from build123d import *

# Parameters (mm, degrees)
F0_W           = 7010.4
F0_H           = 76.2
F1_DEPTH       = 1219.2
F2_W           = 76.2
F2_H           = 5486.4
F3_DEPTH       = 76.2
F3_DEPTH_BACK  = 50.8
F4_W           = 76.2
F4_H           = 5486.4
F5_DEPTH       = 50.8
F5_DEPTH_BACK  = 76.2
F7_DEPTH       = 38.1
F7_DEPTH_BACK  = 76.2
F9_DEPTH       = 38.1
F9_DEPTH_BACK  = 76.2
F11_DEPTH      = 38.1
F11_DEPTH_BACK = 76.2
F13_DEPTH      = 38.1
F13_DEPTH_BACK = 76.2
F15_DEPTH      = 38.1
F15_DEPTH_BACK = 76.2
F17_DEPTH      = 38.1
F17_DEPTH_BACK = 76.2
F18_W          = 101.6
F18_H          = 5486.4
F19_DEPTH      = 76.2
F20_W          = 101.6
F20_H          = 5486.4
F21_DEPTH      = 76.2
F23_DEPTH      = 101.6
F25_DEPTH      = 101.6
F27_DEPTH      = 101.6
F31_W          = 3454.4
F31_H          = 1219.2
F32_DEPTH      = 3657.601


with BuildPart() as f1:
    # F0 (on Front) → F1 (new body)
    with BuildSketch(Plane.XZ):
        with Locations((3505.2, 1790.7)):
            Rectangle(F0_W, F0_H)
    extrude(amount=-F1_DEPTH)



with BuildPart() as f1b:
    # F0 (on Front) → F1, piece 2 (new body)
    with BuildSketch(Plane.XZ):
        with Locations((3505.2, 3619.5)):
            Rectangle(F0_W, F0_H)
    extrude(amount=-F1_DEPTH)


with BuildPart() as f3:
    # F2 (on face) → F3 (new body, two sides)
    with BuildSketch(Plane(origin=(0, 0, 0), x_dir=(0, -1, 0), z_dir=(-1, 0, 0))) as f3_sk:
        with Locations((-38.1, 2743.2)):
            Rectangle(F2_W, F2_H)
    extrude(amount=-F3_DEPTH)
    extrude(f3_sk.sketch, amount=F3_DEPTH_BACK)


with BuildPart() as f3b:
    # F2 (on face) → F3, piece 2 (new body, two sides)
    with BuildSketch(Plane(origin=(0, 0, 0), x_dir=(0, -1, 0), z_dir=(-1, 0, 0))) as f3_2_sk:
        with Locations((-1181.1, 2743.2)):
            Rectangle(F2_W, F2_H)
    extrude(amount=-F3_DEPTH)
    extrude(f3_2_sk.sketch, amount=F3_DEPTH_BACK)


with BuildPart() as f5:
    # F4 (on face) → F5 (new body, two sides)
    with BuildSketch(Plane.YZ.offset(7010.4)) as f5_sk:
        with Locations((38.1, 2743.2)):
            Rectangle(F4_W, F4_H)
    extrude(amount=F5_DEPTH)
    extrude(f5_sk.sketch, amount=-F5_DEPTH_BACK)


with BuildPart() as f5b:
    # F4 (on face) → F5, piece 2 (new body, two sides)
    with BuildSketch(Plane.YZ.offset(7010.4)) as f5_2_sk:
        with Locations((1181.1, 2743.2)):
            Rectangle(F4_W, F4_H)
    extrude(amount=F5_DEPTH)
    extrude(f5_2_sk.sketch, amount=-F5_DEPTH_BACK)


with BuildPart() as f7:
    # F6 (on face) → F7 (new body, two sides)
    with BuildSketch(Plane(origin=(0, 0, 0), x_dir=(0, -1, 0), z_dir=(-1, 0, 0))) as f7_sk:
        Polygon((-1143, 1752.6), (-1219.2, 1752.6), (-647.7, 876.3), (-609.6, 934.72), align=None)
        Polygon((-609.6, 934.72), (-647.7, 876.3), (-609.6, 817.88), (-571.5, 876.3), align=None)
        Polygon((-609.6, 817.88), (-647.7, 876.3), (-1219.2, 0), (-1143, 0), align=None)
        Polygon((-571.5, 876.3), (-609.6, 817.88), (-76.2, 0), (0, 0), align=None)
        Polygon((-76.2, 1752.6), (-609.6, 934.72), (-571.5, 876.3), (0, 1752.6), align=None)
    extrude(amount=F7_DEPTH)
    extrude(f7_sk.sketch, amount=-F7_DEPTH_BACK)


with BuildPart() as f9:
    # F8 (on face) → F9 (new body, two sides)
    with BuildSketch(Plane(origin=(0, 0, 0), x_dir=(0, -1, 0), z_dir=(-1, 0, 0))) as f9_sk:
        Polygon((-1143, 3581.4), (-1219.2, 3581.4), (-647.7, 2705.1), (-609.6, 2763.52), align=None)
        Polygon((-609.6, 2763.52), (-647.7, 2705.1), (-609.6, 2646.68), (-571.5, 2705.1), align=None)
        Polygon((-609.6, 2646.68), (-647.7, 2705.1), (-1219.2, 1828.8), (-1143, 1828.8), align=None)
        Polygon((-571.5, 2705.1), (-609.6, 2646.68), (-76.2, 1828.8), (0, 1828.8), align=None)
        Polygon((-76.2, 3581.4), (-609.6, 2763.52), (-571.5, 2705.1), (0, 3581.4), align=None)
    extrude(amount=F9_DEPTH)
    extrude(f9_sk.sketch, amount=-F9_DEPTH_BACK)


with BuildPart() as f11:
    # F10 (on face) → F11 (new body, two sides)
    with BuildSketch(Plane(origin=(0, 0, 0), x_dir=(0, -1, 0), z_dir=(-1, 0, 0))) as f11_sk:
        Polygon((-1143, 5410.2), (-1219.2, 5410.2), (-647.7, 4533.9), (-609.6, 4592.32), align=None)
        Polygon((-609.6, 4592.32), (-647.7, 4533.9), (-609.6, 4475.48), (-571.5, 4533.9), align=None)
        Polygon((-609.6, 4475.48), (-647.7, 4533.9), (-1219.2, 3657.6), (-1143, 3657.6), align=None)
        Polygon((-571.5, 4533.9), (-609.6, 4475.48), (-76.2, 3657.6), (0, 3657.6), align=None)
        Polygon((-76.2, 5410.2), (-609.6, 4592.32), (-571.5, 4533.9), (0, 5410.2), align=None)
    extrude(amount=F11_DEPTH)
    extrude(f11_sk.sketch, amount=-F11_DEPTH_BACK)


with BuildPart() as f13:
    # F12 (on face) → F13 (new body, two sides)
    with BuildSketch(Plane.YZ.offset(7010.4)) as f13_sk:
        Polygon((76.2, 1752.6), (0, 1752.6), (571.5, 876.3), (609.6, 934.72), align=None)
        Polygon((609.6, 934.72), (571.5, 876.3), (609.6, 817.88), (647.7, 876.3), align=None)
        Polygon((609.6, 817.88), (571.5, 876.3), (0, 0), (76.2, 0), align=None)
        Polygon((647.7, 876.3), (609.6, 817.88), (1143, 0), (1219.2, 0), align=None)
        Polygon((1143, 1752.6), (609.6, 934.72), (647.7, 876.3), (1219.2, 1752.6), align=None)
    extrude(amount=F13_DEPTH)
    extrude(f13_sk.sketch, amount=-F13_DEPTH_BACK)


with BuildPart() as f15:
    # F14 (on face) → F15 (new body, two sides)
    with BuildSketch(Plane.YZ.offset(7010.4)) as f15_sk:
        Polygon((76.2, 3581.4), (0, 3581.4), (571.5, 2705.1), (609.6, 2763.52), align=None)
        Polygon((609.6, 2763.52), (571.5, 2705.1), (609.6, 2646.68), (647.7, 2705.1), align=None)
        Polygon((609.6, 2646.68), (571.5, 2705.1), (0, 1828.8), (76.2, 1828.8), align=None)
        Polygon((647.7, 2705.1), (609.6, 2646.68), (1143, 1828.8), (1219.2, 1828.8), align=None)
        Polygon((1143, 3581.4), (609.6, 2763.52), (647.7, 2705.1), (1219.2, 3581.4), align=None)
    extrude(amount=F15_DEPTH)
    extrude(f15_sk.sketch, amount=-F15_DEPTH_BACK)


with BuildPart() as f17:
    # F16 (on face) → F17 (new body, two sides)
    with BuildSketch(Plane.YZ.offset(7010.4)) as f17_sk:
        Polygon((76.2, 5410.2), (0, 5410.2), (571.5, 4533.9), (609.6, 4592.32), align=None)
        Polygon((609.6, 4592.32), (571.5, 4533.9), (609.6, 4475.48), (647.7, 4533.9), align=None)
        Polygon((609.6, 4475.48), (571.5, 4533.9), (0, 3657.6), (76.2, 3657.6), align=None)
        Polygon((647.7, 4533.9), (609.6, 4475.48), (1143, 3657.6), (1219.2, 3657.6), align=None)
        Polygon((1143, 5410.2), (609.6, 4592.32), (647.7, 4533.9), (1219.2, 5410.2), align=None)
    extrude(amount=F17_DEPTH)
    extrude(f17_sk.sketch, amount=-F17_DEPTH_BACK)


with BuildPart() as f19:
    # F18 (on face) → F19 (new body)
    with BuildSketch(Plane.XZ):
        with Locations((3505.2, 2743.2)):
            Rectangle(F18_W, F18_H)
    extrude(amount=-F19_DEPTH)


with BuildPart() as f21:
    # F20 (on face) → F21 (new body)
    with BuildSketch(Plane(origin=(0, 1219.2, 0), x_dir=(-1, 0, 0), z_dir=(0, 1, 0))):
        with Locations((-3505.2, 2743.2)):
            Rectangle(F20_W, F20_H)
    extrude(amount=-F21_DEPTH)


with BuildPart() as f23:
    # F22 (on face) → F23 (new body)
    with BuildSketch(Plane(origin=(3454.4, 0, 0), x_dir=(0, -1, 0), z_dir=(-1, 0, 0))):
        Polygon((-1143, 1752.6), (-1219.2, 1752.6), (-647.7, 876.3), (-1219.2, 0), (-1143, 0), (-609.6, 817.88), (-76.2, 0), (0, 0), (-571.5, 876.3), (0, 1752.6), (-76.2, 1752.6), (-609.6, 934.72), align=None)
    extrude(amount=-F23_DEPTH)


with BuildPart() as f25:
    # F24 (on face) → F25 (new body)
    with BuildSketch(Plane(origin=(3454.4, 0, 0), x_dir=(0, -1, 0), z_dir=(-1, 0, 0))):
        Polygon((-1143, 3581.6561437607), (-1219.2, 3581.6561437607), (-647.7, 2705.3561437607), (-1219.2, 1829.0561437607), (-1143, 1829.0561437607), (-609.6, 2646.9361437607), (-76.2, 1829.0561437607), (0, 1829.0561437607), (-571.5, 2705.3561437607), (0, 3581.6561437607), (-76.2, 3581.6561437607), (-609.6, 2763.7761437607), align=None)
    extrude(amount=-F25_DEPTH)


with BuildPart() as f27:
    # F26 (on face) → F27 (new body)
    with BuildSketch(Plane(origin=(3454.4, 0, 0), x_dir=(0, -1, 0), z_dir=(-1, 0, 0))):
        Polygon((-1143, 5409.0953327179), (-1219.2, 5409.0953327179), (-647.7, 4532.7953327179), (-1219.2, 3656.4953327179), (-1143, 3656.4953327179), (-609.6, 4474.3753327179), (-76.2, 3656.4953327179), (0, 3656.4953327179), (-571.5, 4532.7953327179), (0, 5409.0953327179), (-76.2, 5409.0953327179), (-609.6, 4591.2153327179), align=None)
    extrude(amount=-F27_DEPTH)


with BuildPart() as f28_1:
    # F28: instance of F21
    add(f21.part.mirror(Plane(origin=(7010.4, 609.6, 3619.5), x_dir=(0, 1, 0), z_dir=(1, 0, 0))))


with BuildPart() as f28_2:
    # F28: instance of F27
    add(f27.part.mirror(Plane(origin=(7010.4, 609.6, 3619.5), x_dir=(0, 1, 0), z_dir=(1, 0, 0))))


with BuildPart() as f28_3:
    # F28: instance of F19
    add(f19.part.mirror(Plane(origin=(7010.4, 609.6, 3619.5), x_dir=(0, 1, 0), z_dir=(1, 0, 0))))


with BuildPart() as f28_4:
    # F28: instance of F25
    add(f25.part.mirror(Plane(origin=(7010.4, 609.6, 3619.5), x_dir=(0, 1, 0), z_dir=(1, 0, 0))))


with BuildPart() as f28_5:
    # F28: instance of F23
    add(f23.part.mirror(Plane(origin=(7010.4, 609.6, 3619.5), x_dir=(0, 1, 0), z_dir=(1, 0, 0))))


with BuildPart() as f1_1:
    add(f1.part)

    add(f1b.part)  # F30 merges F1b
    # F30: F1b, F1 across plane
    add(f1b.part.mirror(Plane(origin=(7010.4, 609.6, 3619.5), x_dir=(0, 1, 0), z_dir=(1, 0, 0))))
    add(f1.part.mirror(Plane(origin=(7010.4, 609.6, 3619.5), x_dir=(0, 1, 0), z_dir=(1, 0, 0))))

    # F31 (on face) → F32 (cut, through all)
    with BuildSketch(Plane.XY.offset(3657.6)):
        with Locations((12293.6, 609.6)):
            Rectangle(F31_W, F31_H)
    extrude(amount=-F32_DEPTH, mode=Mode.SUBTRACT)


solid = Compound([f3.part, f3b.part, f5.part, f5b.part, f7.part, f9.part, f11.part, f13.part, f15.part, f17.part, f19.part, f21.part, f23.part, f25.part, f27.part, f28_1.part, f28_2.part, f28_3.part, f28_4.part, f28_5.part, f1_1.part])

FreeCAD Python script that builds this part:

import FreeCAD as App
import Part
import Sketcher

V = App.Vector
Q = App.Units.Quantity


def add_polygon(sketch, points):
    """Adds a closed chain of lines whose ends are joined by coincident constraints."""
    first, n = sketch.GeometryCount, len(points)
    for a, b in zip(points, points[1:] + points[:1]):
        sketch.addGeometry(Part.LineSegment(App.Vector(*a, 0), App.Vector(*b, 0)), False)
    for i in range(n):
        sketch.addConstraint(Sketcher.Constraint("Coincident", first + i, 2, first + (i + 1) % n, 1))

doc = App.newDocument("Part")
body = doc.addObject("PartDesign::Body", "Body")

# Sketch on XZ plane
sketch1 = body.newObject("Sketcher::SketchObject", "Sketch")
sketch1.AttachmentSupport = (doc.getObject("XZ_Plane"), [""])
sketch1.MapMode = "FlatFace"
add_polygon(sketch1, [(0, 1828.8), (0, 1752.6), (7010.4, 1752.6), (7010.4, 1828.8)])  # lines 0-3
sketch1.addConstraint([
    Sketcher.Constraint("Vertical", 0),
    Sketcher.Constraint("Horizontal", 1),
    Sketcher.Constraint("Vertical", 2),
    Sketcher.Constraint("Horizontal", 3),
    Sketcher.Constraint("PointOnObject", 0, 2, -2),
    Sketcher.Constraint("DistanceX", 1, 1, 1, 2, Q("276 in")),
    Sketcher.Constraint("DistanceY", 0, 2, 0, 1, Q("3 in")),
    Sketcher.Constraint("DistanceY", -1, 1, 0, 2, Q("69 in")),
])
pad1 = body.newObject("PartDesign::Pad", "Pad")
pad1.Profile = sketch1
pad1.Length = Q("48 in")
pad1.Reversed = True
body2 = doc.addObject("PartDesign::Body", "Body001")

# Sketch on XZ plane
sketch2 = body2.newObject("Sketcher::SketchObject", "Sketch001")
sketch2.AttachmentSupport = (doc.getObject("XZ_Plane001"), [""])
sketch2.MapMode = "FlatFace"
add_polygon(sketch2, [(0, 3657.6), (0, 3581.4), (7010.4, 3581.4), (7010.4, 3657.6)])  # lines 0-3
sketch2.addConstraint([
    Sketcher.Constraint("Vertical", 0),
    Sketcher.Constraint("Horizontal", 1),
    Sketcher.Constraint("Vertical", 2),
    Sketcher.Constraint("Horizontal", 3),
    Sketcher.Constraint("PointOnObject", 0, 2, -2),
    Sketcher.Constraint("DistanceX", 1, 1, 1, 2, Q("276 in")),
    Sketcher.Constraint("DistanceY", 0, 2, 0, 1, Q("3 in")),
    Sketcher.Constraint("DistanceY", -1, 1, 0, 2, Q("141 in")),
])
pad2 = body2.newObject("PartDesign::Pad", "Pad001")
pad2.Profile = sketch2
pad2.Length = Q("48 in")
pad2.Reversed = True
body3 = doc.addObject("PartDesign::Body", "Body002")

# Sketch on YZ plane
sketch3 = body3.newObject("Sketcher::SketchObject", "Sketch002")
sketch3.AttachmentSupport = (doc.getObject("YZ_Plane002"), [""])
sketch3.MapMode = "FlatFace"
add_polygon(sketch3, [(76.2, 5486.4), (76.2, 0), (0, 0), (0, 5486.4)])  # lines 0-3
sketch3.addConstraint([
    Sketcher.Constraint("Vertical", 0),
    Sketcher.Constraint("Horizontal", 1),
    Sketcher.Constraint("Vertical", 2),
    Sketcher.Constraint("Horizontal", 3),
    Sketcher.Constraint("Coincident", 1, 2, -1, 1),
    Sketcher.Constraint("DistanceX", 1, 2, 1, 1, Q("3 in")),
    Sketcher.Constraint("DistanceY", 0, 2, 0, 1, Q("216 in")),
])
pad3 = body3.newObject("PartDesign::Pad", "Pad002")
pad3.Profile = sketch3
pad3.Type = "TwoLengths"
pad3.Length = Q("3 in")
pad3.Length2 = Q("2 in")
body4 = doc.addObject("PartDesign::Body", "Body003")

# Sketch on YZ plane
sketch4 = body4.newObject("Sketcher::SketchObject", "Sketch003")
sketch4.AttachmentSupport = (doc.getObject("YZ_Plane003"), [""])
sketch4.MapMode = "FlatFace"
add_polygon(sketch4, [(1219.2, 5486.4), (1219.2, 0), (1143, 0), (1143, 5486.4)])  # lines 0-3
sketch4.addConstraint([
    Sketcher.Constraint("Vertical", 0),
    Sketcher.Constraint("Horizontal", 1),
    Sketcher.Constraint("Vertical", 2),
    Sketcher.Constraint("Horizontal", 3),
    Sketcher.Constraint("PointOnObject", 0, 2, -1),
    Sketcher.Constraint("DistanceX", 1, 2, 1, 1, Q("3 in")),
    Sketcher.Constraint("DistanceY", 0, 2, 0, 1, Q("216 in")),
    Sketcher.Constraint("DistanceX", -1, 1, 0, 2, Q("48 in")),
])
pad4 = body4.newObject("PartDesign::Pad", "Pad003")
pad4.Profile = sketch4
pad4.Type = "TwoLengths"
pad4.Length = Q("3 in")
pad4.Length2 = Q("2 in")
body5 = doc.addObject("PartDesign::Body", "Body004")

# Sketch on YZ plane
sketch5 = body5.newObject("Sketcher::SketchObject", "Sketch004")
sketch5.AttachmentSupport = (doc.getObject("YZ_Plane004"), [""])
sketch5.MapMode = "FlatFace"
sketch5.AttachmentOffset = App.Placement(V(0, 0, 276 * 25.4), App.Rotation())
add_polygon(sketch5, [(0, 5486.4), (0, 0), (76.2, 0), (76.2, 5486.4)])  # lines 0-3
sketch5.addConstraint([
    Sketcher.Constraint("Vertical", 0),
    Sketcher.Constraint("Horizontal", 1),
    Sketcher.Constraint("Vertical", 2),
    Sketcher.Constraint("Horizontal", 3),
    Sketcher.Constraint("Coincident", 0, 2, -1, 1),
    Sketcher.Constraint("DistanceX", 1, 1, 1, 2, Q("3 in")),
    Sketcher.Constraint("DistanceY", 0, 2, 0, 1, Q("216 in")),
])
pad5 = body5.newObject("PartDesign::Pad", "Pad004")
pad5.Profile = sketch5
pad5.Type = "TwoLengths"
pad5.Length = Q("2 in")
pad5.Length2 = Q("3 in")
body6 = doc.addObject("PartDesign::Body", "Body005")

# Sketch on YZ plane
sketch6 = body6.newObject("Sketcher::SketchObject", "Sketch005")
sketch6.AttachmentSupport = (doc.getObject("YZ_Plane005"), [""])
sketch6.MapMode = "FlatFace"
sketch6.AttachmentOffset = App.Placement(V(0, 0, 276 * 25.4), App.Rotation())
add_polygon(sketch6, [(1143, 5486.4), (1143, 0), (1219.2, 0), (1219.2, 5486.4)])  # lines 0-3
sketch6.addConstraint([
    Sketcher.Constraint("Vertical", 0),
    Sketcher.Constraint("Horizontal", 1),
    Sketcher.Constraint("Vertical", 2),
    Sketcher.Constraint("Horizontal", 3),
    Sketcher.Constraint("PointOnObject", 0, 2, -1),
    Sketcher.Constraint("DistanceX", 1, 1, 1, 2, Q("3 in")),
    Sketcher.Constraint("DistanceY", 0, 2, 0, 1, Q("216 in")),
    Sketcher.Constraint("DistanceX", -1, 1, 0, 2, Q("45 in")),
])
pad6 = body6.newObject("PartDesign::Pad", "Pad005")
pad6.Profile = sketch6
pad6.Type = "TwoLengths"
pad6.Length = Q("2 in")
pad6.Length2 = Q("3 in")
body7 = doc.addObject("PartDesign::Body", "Body006")

# Sketch on YZ plane
sketch7 = body7.newObject("Sketcher::SketchObject", "Sketch006")
sketch7.AttachmentSupport = (doc.getObject("YZ_Plane006"), [""])
sketch7.MapMode = "FlatFace"
add_polygon(sketch7, [(1143, 1752.6), (1219.2, 1752.6), (647.7, 876.3), (1219.2, 0), (1143, 0), (609.6, 817.88), (76.2, 0), (0, 0), (571.5, 876.3), (0, 1752.6), (76.2, 1752.6), (609.6, 934.72)])  # lines 0-11
sketch7.addConstraint([
    Sketcher.Constraint("Horizontal", 0),
    Sketcher.Constraint("Horizontal", 3),
    Sketcher.Constraint("Horizontal", 6),
    Sketcher.Constraint("Horizontal", 9),
    Sketcher.Constraint("Coincident", 6, 2, -1, 1),
    Sketcher.Constraint("PointOnObject", 2, 2, -1),
    Sketcher.Constraint("PointOnObject", 8, 2, -2),
    Sketcher.Constraint("Parallel", 2, 4),
    Sketcher.Constraint("Parallel", 1, 5),
    Sketcher.Constraint("Parallel", 5, 7),
    Sketcher.Constraint("Parallel", 4, 8),
    Sketcher.Constraint("Parallel", 8, 10),
    Sketcher.Constraint("Parallel", 7, 11),
    Sketcher.Constraint("Horizontal", 1, 2, 7, 2),
    Sketcher.Constraint("Horizontal", 0, 2, 8, 2),
    Sketcher.Constraint("Vertical", 0, 2, 2, 2),
    Sketcher.Constraint("Vertical", 5, 2, 9, 2),
    Sketcher.Constraint("Vertical", 4, 2, 10, 2),
    Sketcher.Constraint("Equal", 3, 6),
    Sketcher.Constraint("DistanceX", 0, 1, 0, 2, Q("3 in")),
    Sketcher.Constraint("DistanceX", -1, 1, 0, 2, Q("48 in")),
    Sketcher.Constraint("DistanceY", -1, 1, 0, 2, Q("69 in")),
    Sketcher.Constraint("DistanceX", 7, 2, 1, 2, Q("3 in")),
])
pad7 = body7.newObject("PartDesign::Pad", "Pad006")
pad7.Profile = sketch7
pad7.Type = "TwoLengths"
pad7.Length = Q("1.5 in")
pad7.Length2 = Q("3 in")
pad7.Reversed = True
body8 = doc.addObject("PartDesign::Body", "Body007")

# Sketch on YZ plane
sketch8 = body8.newObject("Sketcher::SketchObject", "Sketch007")
sketch8.AttachmentSupport = (doc.getObject("YZ_Plane007"), [""])
sketch8.MapMode = "FlatFace"
add_polygon(sketch8, [(1143, 3581.4), (1219.2, 3581.4), (647.7, 2705.1), (1219.2, 1828.8), (1143, 1828.8), (609.6, 2646.68), (76.2, 1828.8), (0, 1828.8), (571.5, 2705.1), (0, 3581.4), (76.2, 3581.4), (609.6, 2763.52)])  # lines 0-11
sketch8.addConstraint([
    Sketcher.Constraint("Horizontal", 0),
    Sketcher.Constraint("Horizontal", 3),
    Sketcher.Constraint("Horizontal", 6),
    Sketcher.Constraint("Horizontal", 9),
    Sketcher.Constraint("PointOnObject", 6, 2, -2),
    Sketcher.Constraint("PointOnObject", 8, 2, -2),
    Sketcher.Constraint("Parallel", 2, 4),
    Sketcher.Constraint("Parallel", 1, 5),
    Sketcher.Constraint("Parallel", 5, 7),
    Sketcher.Constraint("Parallel", 4, 8),
    Sketcher.Constraint("Parallel", 8, 10),
    Sketcher.Constraint("Parallel", 7, 11),
    Sketcher.Constraint("Horizontal", 3, 2, 5, 2),
    Sketcher.Constraint("Horizontal", 1, 2, 7, 2),
    Sketcher.Constraint("Horizontal", 0, 2, 8, 2),
    Sketcher.Constraint("Vertical", 0, 2, 2, 2),
    Sketcher.Constraint("Vertical", 5, 2, 9, 2),
    Sketcher.Constraint("Vertical", 4, 2, 10, 2),
    Sketcher.Constraint("Equal", 3, 6),
    Sketcher.Constraint("DistanceX", 0, 1, 0, 2, Q("3 in")),
    Sketcher.Constraint("DistanceX", -1, 1, 0, 2, Q("48 in")),
    Sketcher.Constraint("DistanceY", -1, 1, 0, 2, Q("141 in")),
    Sketcher.Constraint("DistanceY", -1, 1, 2, 2, Q("72 in")),
    Sketcher.Constraint("DistanceX", 7, 2, 1, 2, Q("3 in")),
])
pad8 = body8.newObject("PartDesign::Pad", "Pad007")
pad8.Profile = sketch8
pad8.Type = "TwoLengths"
pad8.Length = Q("1.5 in")
pad8.Length2 = Q("3 in")
pad8.Reversed = True
body9 = doc.addObject("PartDesign::Body", "Body008")

# Sketch on YZ plane
sketch9 = body9.newObject("Sketcher::SketchObject", "Sketch008")
sketch9.AttachmentSupport = (doc.getObject("YZ_Plane008"), [""])
sketch9.MapMode = "FlatFace"
add_polygon(sketch9, [(1143, 5410.2), (1219.2, 5410.2), (647.7, 4533.9), (1219.2, 3657.6), (1143, 3657.6), (609.6, 4475.48), (76.2, 3657.6), (0, 3657.6), (571.5, 4533.9), (0, 5410.2), (76.2, 5410.2), (609.6, 4592.32)])  # lines 0-11
sketch9.addConstraint([
    Sketcher.Constraint("Horizontal", 0),
    Sketcher.Constraint("Horizontal", 3),
    Sketcher.Constraint("Horizontal", 6),
    Sketcher.Constraint("Horizontal", 9),
    Sketcher.Constraint("PointOnObject", 6, 2, -2),
    Sketcher.Constraint("PointOnObject", 8, 2, -2),
    Sketcher.Constraint("Parallel", 2, 4),
    Sketcher.Constraint("Parallel", 1, 5),
    Sketcher.Constraint("Parallel", 5, 7),
    Sketcher.Constraint("Parallel", 4, 8),
    Sketcher.Constraint("Parallel", 8, 10),
    Sketcher.Constraint("Parallel", 7, 11),
    Sketcher.Constraint("Horizontal", 3, 2, 5, 2),
    Sketcher.Constraint("Horizontal", 1, 2, 7, 2),
    Sketcher.Constraint("Horizontal", 0, 2, 8, 2),
    Sketcher.Constraint("Vertical", 0, 2, 2, 2),
    Sketcher.Constraint("Vertical", 5, 2, 9, 2),
    Sketcher.Constraint("Vertical", 4, 2, 10, 2),
    Sketcher.Constraint("Equal", 3, 6),
    Sketcher.Constraint("DistanceX", 0, 1, 0, 2, Q("3 in")),
    Sketcher.Constraint("DistanceX", -1, 1, 0, 2, Q("48 in")),
    Sketcher.Constraint("DistanceY", -1, 1, 0, 2, Q("213 in")),
    Sketcher.Constraint("DistanceY", -1, 1, 2, 2, Q("144 in")),
    Sketcher.Constraint("DistanceX", 7, 2, 1, 2, Q("3 in")),
])
pad9 = body9.newObject("PartDesign::Pad", "Pad008")
pad9.Profile = sketch9
pad9.Type = "TwoLengths"
pad9.Length = Q("1.5 in")
pad9.Length2 = Q("3 in")
pad9.Reversed = True
body10 = doc.addObject("PartDesign::Body", "Body009")

# Sketch on YZ plane
sketch10 = body10.newObject("Sketcher::SketchObject", "Sketch009")
sketch10.AttachmentSupport = (doc.getObject("YZ_Plane009"), [""])
sketch10.MapMode = "FlatFace"
sketch10.AttachmentOffset = App.Placement(V(0, 0, 276 * 25.4), App.Rotation())
add_polygon(sketch10, [(76.2, 1752.6), (0, 1752.6), (571.5, 876.3), (0, 0), (76.2, 0), (609.6, 817.88), (1143, 0), (1219.2, 0), (647.7, 876.3), (1219.2, 1752.6), (1143, 1752.6), (609.6, 934.72)])  # lines 0-11
sketch10.addConstraint([
    Sketcher.Constraint("Horizontal", 0),
    Sketcher.Constraint("Horizontal", 3),
    Sketcher.Constraint("Horizontal", 6),
    Sketcher.Constraint("Horizontal", 9),
    Sketcher.Constraint("Coincident", 2, 2, -1, 1),
    Sketcher.Constraint("PointOnObject", 0, 2, -2),
    Sketcher.Constraint("PointOnObject", 5, 2, -1),
    Sketcher.Constraint("Parallel", 2, 4),
    Sketcher.Constraint("Parallel", 1, 5),
    Sketcher.Constraint("Parallel", 5, 7),
    Sketcher.Constraint("Parallel", 4, 8),
    Sketcher.Constraint("Parallel", 8, 10),
    Sketcher.Constraint("Parallel", 7, 11),
    Sketcher.Constraint("Horizontal", 1, 2, 7, 2),
    Sketcher.Constraint("Horizontal", 0, 2, 8, 2),
    Sketcher.Constraint("Vertical", 6, 2, 8, 2),
    Sketcher.Constraint("Vertical", 5, 2, 9, 2),
    Sketcher.Constraint("Vertical", 4, 2, 10, 2),
    Sketcher.Constraint("Equal", 3, 6),
    Sketcher.Constraint("DistanceX", 0, 2, 0, 1, Q("3 in")),
    Sketcher.Constraint("DistanceY", -1, 1, 0, 2, Q("69 in")),
    Sketcher.Constraint("DistanceX", -1, 1, 4, 2, Q("24 in")),
    Sketcher.Constraint("DistanceX", 1, 2, 7, 2, Q("3 in")),
])
pad10 = body10.newObject("PartDesign::Pad", "Pad009")
pad10.Profile = sketch10
pad10.Type = "TwoLengths"
pad10.Length = Q("1.5 in")
pad10.Length2 = Q("3 in")
body11 = doc.addObject("PartDesign::Body", "Body010")

# Sketch on YZ plane
sketch11 = body11.newObject("Sketcher::SketchObject", "Sketch010")
sketch11.AttachmentSupport = (doc.getObject("YZ_Plane010"), [""])
sketch11.MapMode = "FlatFace"
sketch11.AttachmentOffset = App.Placement(V(0, 0, 276 * 25.4), App.Rotation())
add_polygon(sketch11, [(76.2, 3581.4), (0, 3581.4), (571.5, 2705.1), (0, 1828.8), (76.2, 1828.8), (609.6, 2646.68), (1143, 1828.8), (1219.2, 1828.8), (647.7, 2705.1), (1219.2, 3581.4), (1143, 3581.4), (609.6, 2763.52)])  # lines 0-11
sketch11.addConstraint([
    Sketcher.Constraint("Horizontal", 0),
    Sketcher.Constraint("Horizontal", 3),
    Sketcher.Constraint("Horizontal", 6),
    Sketcher.Constraint("Horizontal", 9),
    Sketcher.Constraint("PointOnObject", 0, 2, -2),
    Sketcher.Constraint("PointOnObject", 2, 2, -2),
    Sketcher.Constraint("Parallel", 2, 4),
    Sketcher.Constraint("Parallel", 1, 5),
    Sketcher.Constraint("Parallel", 5, 7),
    Sketcher.Constraint("Parallel", 4, 8),
    Sketcher.Constraint("Parallel", 8, 10),
    Sketcher.Constraint("Parallel", 7, 11),
    Sketcher.Constraint("Horizontal", 3, 2, 5, 2),
    Sketcher.Constraint("Horizontal", 1, 2, 7, 2),
    Sketcher.Constraint("Horizontal", 0, 2, 8, 2),
    Sketcher.Constraint("Vertical", 6, 2, 8, 2),
    Sketcher.Constraint("Vertical", 5, 2, 9, 2),
    Sketcher.Constraint("Vertical", 4, 2, 10, 2),
    Sketcher.Constraint("Equal", 3, 6),
    Sketcher.Constraint("DistanceX", 0, 2, 0, 1, Q("3 in")),
    Sketcher.Constraint("DistanceY", -1, 1, 0, 2, Q("141 in")),
    Sketcher.Constraint("DistanceY", -1, 1, 2, 2, Q("72 in")),
    Sketcher.Constraint("DistanceX", -1, 1, 4, 2, Q("24 in")),
    Sketcher.Constraint("DistanceX", 1, 2, 7, 2, Q("3 in")),
])
pad11 = body11.newObject("PartDesign::Pad", "Pad010")
pad11.Profile = sketch11
pad11.Type = "TwoLengths"
pad11.Length = Q("1.5 in")
pad11.Length2 = Q("3 in")
body12 = doc.addObject("PartDesign::Body", "Body011")

# Sketch on YZ plane
sketch12 = body12.newObject("Sketcher::SketchObject", "Sketch011")
sketch12.AttachmentSupport = (doc.getObject("YZ_Plane011"), [""])
sketch12.MapMode = "FlatFace"
sketch12.AttachmentOffset = App.Placement(V(0, 0, 276 * 25.4), App.Rotation())
add_polygon(sketch12, [(76.2, 5410.2), (0, 5410.2), (571.5, 4533.9), (0, 3657.6), (76.2, 3657.6), (609.6, 4475.48), (1143, 3657.6), (1219.2, 3657.6), (647.7, 4533.9), (1219.2, 5410.2), (1143, 5410.2), (609.6, 4592.32)])  # lines 0-11
sketch12.addConstraint([
    Sketcher.Constraint("Horizontal", 0),
    Sketcher.Constraint("Horizontal", 3),
    Sketcher.Constraint("Horizontal", 6),
    Sketcher.Constraint("Horizontal", 9),
    Sketcher.Constraint("PointOnObject", 0, 2, -2),
    Sketcher.Constraint("PointOnObject", 2, 2, -2),
    Sketcher.Constraint("Parallel", 2, 4),
    Sketcher.Constraint("Parallel", 1, 5),
    Sketcher.Constraint("Parallel", 5, 7),
    Sketcher.Constraint("Parallel", 4, 8),
    Sketcher.Constraint("Parallel", 8, 10),
    Sketcher.Constraint("Parallel", 7, 11),
    Sketcher.Constraint("Horizontal", 3, 2, 5, 2),
    Sketcher.Constraint("Horizontal", 1, 2, 7, 2),
    Sketcher.Constraint("Horizontal", 0, 2, 8, 2),
    Sketcher.Constraint("Vertical", 6, 2, 8, 2),
    Sketcher.Constraint("Vertical", 5, 2, 9, 2),
    Sketcher.Constraint("Vertical", 4, 2, 10, 2),
    Sketcher.Constraint("Equal", 3, 6),
    Sketcher.Constraint("DistanceX", 0, 2, 0, 1, Q("3 in")),
    Sketcher.Constraint("DistanceY", -1, 1, 0, 2, Q("213 in")),
    Sketcher.Constraint("DistanceY", -1, 1, 2, 2, Q("144 in")),
    Sketcher.Constraint("DistanceX", -1, 1, 4, 2, Q("24 in")),
    Sketcher.Constraint("DistanceX", 1, 2, 7, 2, Q("3 in")),
])
pad12 = body12.newObject("PartDesign::Pad", "Pad011")
pad12.Profile = sketch12
pad12.Type = "TwoLengths"
pad12.Length = Q("1.5 in")
pad12.Length2 = Q("3 in")
body13 = doc.addObject("PartDesign::Body", "Body012")

# Sketch on XZ plane
sketch13 = body13.newObject("Sketcher::SketchObject", "Sketch012")
sketch13.AttachmentSupport = (doc.getObject("XZ_Plane012"), [""])
sketch13.MapMode = "FlatFace"
add_polygon(sketch13, [(3454.4, 5486.4), (3454.4, 0), (3556, 0), (3556, 5486.4)])  # lines 0-3
sketch13.addConstraint([
    Sketcher.Constraint("Vertical", 0),
    Sketcher.Constraint("Horizontal", 1),
    Sketcher.Constraint("Vertical", 2),
    Sketcher.Constraint("Horizontal", 3),
    Sketcher.Constraint("PointOnObject", 0, 2, -1),
    Sketcher.Constraint("DistanceX", 1, 1, 1, 2, Q("4 in")),
    Sketcher.Constraint("DistanceY", 0, 2, 0, 1, Q("216 in")),
    Sketcher.Constraint("DistanceX", -1, 1, 0, 2, Q("136 in")),
])
pad13 = body13.newObject("PartDesign::Pad", "Pad012")
pad13.Profile = sketch13
pad13.Length = Q("3 in")
pad13.Reversed = True
body14 = doc.addObject("PartDesign::Body", "Body013")

# Sketch on XZ plane
sketch14 = body14.newObject("Sketcher::SketchObject", "Sketch013")
sketch14.AttachmentSupport = (doc.getObject("XZ_Plane013"), [""])
sketch14.MapMode = "FlatFace"
sketch14.AttachmentOffset = App.Placement(V(0, 0, -48 * 25.4), App.Rotation())
add_polygon(sketch14, [(3556, 5486.4), (3556, 0), (3454.4, 0), (3454.4, 5486.4)])  # lines 0-3
sketch14.addConstraint([
    Sketcher.Constraint("Vertical", 0),
    Sketcher.Constraint("Horizontal", 1),
    Sketcher.Constraint("Vertical", 2),
    Sketcher.Constraint("Horizontal", 3),
    Sketcher.Constraint("PointOnObject", 0, 2, -1),
    Sketcher.Constraint("DistanceX", 1, 2, 1, 1, Q("4 in")),
    Sketcher.Constraint("DistanceY", 0, 2, 0, 1, Q("216 in")),
    Sketcher.Constraint("DistanceX", -1, 1, 0, 2, Q("140 in")),
])
pad14 = body14.newObject("PartDesign::Pad", "Pad013")
pad14.Profile = sketch14
pad14.Length = Q("3 in")
body15 = doc.addObject("PartDesign::Body", "Body014")

# Sketch on YZ plane
sketch15 = body15.newObject("Sketcher::SketchObject", "Sketch014")
sketch15.AttachmentSupport = (doc.getObject("YZ_Plane014"), [""])
sketch15.MapMode = "FlatFace"
sketch15.AttachmentOffset = App.Placement(V(0, 0, 136 * 25.4), App.Rotation())
add_polygon(sketch15, [(1143, 1752.6), (1219.2, 1752.6), (647.7, 876.3), (1219.2, 0), (1143, 0), (609.6, 817.88), (76.2, 0), (0, 0), (571.5, 876.3), (0, 1752.6), (76.2, 1752.6), (609.6, 934.72)])  # lines 0-11
sketch15.addConstraint([
    Sketcher.Constraint("Horizontal", 0),
    Sketcher.Constraint("Horizontal", 3),
    Sketcher.Constraint("Horizontal", 6),
    Sketcher.Constraint("Horizontal", 9),
    Sketcher.Constraint("Coincident", 6, 2, -1, 1),
    Sketcher.Constraint("PointOnObject", 2, 2, -1),
    Sketcher.Constraint("PointOnObject", 8, 2, -2),
    Sketcher.Constraint("Parallel", 2, 4),
    Sketcher.Constraint("Parallel", 1, 5),
    Sketcher.Constraint("Parallel", 5, 7),
    Sketcher.Constraint("Parallel", 4, 8),
    Sketcher.Constraint("Parallel", 8, 10),
    Sketcher.Constraint("Parallel", 7, 11),
    Sketcher.Constraint("Horizontal", 1, 2, 7, 2),
    Sketcher.Constraint("Horizontal", 0, 2, 8, 2),
    Sketcher.Constraint("Vertical", 0, 2, 2, 2),
    Sketcher.Constraint("Vertical", 5, 2, 9, 2),
    Sketcher.Constraint("Vertical", 4, 2, 10, 2),
    Sketcher.Constraint("Equal", 3, 6),
    Sketcher.Constraint("DistanceX", 0, 1, 0, 2, Q("3 in")),
    Sketcher.Constraint("DistanceX", -1, 1, 0, 2, Q("48 in")),
    Sketcher.Constraint("DistanceY", -1, 1, 0, 2, Q("69 in")),
    Sketcher.Constraint("DistanceX", 7, 2, 1, 2, Q("3 in")),
])
pad15 = body15.newObject("PartDesign::Pad", "Pad014")
pad15.Profile = sketch15
pad15.Length = Q("4 in")
body16 = doc.addObject("PartDesign::Body", "Body015")

# Sketch on YZ plane
sketch16 = body16.newObject("Sketcher::SketchObject", "Sketch015")
sketch16.AttachmentSupport = (doc.getObject("YZ_Plane015"), [""])
sketch16.MapMode = "FlatFace"
sketch16.AttachmentOffset = App.Placement(V(0, 0, 136 * 25.4), App.Rotation())
add_polygon(sketch16, [(1143, 3581.656144), (1219.2, 3581.656144), (647.7, 2705.356144), (1219.2, 1829.056144), (1143, 1829.056144), (609.6, 2646.936144), (76.2, 1829.056144), (0, 1829.056144), (571.5, 2705.356144), (0, 3581.656144), (76.2, 3581.656144), (609.6, 2763.776144)])  # lines 0-11
sketch16.addConstraint([
    Sketcher.Constraint("Horizontal", 0),
    Sketcher.Constraint("Horizontal", 3),
    Sketcher.Constraint("Horizontal", 6),
    Sketcher.Constraint("Horizontal", 9),
    Sketcher.Constraint("PointOnObject", 6, 2, -2),
    Sketcher.Constraint("PointOnObject", 8, 2, -2),
    Sketcher.Constraint("Parallel", 2, 4),
    Sketcher.Constraint("Parallel", 1, 5),
    Sketcher.Constraint("Parallel", 5, 7),
    Sketcher.Constraint("Parallel", 4, 8),
    Sketcher.Constraint("Parallel", 8, 10),
    Sketcher.Constraint("Parallel", 7, 11),
    Sketcher.Constraint("Horizontal", 3, 2, 5, 2),
    Sketcher.Constraint("Horizontal", 1, 2, 7, 2),
    Sketcher.Constraint("Horizontal", 0, 2, 8, 2),
    Sketcher.Constraint("Vertical", 0, 2, 2, 2),
    Sketcher.Constraint("Vertical", 5, 2, 9, 2),
    Sketcher.Constraint("Vertical", 4, 2, 10, 2),
    Sketcher.Constraint("Equal", 3, 6),
    Sketcher.Constraint("DistanceX", 0, 1, 0, 2, Q("3 in")),
    Sketcher.Constraint("DistanceX", -1, 1, 0, 2, Q("48 in")),
    Sketcher.Constraint("DistanceY", 2, 2, 0, 2, Q("69 in")),
    Sketcher.Constraint("DistanceX", 7, 2, 1, 2, Q("3 in")),
    Sketcher.Constraint("DistanceY", -1, 1, 0, 2, Q("3581.656144 mm")),
])
pad16 = body16.newObject("PartDesign::Pad", "Pad015")
pad16.Profile = sketch16
pad16.Length = Q("4 in")
body17 = doc.addObject("PartDesign::Body", "Body016")

# Sketch on YZ plane
sketch17 = body17.newObject("Sketcher::SketchObject", "Sketch016")
sketch17.AttachmentSupport = (doc.getObject("YZ_Plane016"), [""])
sketch17.MapMode = "FlatFace"
sketch17.AttachmentOffset = App.Placement(V(0, 0, 136 * 25.4), App.Rotation())
add_polygon(sketch17, [(1143, 5409.095333), (1219.2, 5409.095333), (647.7, 4532.795333), (1219.2, 3656.495333), (1143, 3656.495333), (609.6, 4474.375333), (76.2, 3656.495333), (0, 3656.495333), (571.5, 4532.795333), (0, 5409.095333), (76.2, 5409.095333), (609.6, 4591.215333)])  # lines 0-11
sketch17.addConstraint([
    Sketcher.Constraint("Horizontal", 0),
    Sketcher.Constraint("Horizontal", 3),
    Sketcher.Constraint("Horizontal", 6),
    Sketcher.Constraint("Horizontal", 9),
    Sketcher.Constraint("PointOnObject", 6, 2, -2),
    Sketcher.Constraint("PointOnObject", 8, 2, -2),
    Sketcher.Constraint("Parallel", 2, 4),
    Sketcher.Constraint("Parallel", 1, 5),
    Sketcher.Constraint("Parallel", 5, 7),
    Sketcher.Constraint("Parallel", 4, 8),
    Sketcher.Constraint("Parallel", 8, 10),
    Sketcher.Constraint("Parallel", 7, 11),
    Sketcher.Constraint("Horizontal", 3, 2, 5, 2),
    Sketcher.Constraint("Horizontal", 1, 2, 7, 2),
    Sketcher.Constraint("Horizontal", 0, 2, 8, 2),
    Sketcher.Constraint("Vertical", 0, 2, 2, 2),
    Sketcher.Constraint("Vertical", 5, 2, 9, 2),
    Sketcher.Constraint("Vertical", 4, 2, 10, 2),
    Sketcher.Constraint("Equal", 3, 6),
    Sketcher.Constraint("DistanceX", 0, 1, 0, 2, Q("3 in")),
    Sketcher.Constraint("DistanceX", -1, 1, 0, 2, Q("48 in")),
    Sketcher.Constraint("DistanceY", 2, 2, 0, 2, Q("69 in")),
    Sketcher.Constraint("DistanceX", 7, 2, 1, 2, Q("3 in")),
    Sketcher.Constraint("DistanceY", -1, 1, 0, 2, Q("5409.095333 mm")),
])
pad17 = body17.newObject("PartDesign::Pad", "Pad016")
pad17.Profile = sketch17
pad17.Length = Q("4 in")
body18 = doc.addObject("PartDesign::Body", "Body017")
doc.recompute()

mirroring = doc.addObject("Part::Mirroring", "Mirroring")
mirroring.Source = body14
mirroring.Base = V(7010.4, 609.6, 3619.5)
mirroring.Normal = V(1, 0, 0)
body18.BaseFeature = mirroring
doc.recompute()
body19 = doc.addObject("PartDesign::Body", "Body018")
doc.recompute()

mirroring2 = doc.addObject("Part::Mirroring", "Mirroring001")
mirroring2.Source = body17
mirroring2.Base = V(7010.4, 609.6, 3619.5)
mirroring2.Normal = V(1, 0, 0)
body19.BaseFeature = mirroring2
doc.recompute()
body20 = doc.addObject("PartDesign::Body", "Body019")
doc.recompute()

mirroring3 = doc.addObject("Part::Mirroring", "Mirroring002")
mirroring3.Source = body13
mirroring3.Base = V(7010.4, 609.6, 3619.5)
mirroring3.Normal = V(1, 0, 0)
body20.BaseFeature = mirroring3
doc.recompute()
body21 = doc.addObject("PartDesign::Body", "Body020")
doc.recompute()

mirroring4 = doc.addObject("Part::Mirroring", "Mirroring003")
mirroring4.Source = body16
mirroring4.Base = V(7010.4, 609.6, 3619.5)
mirroring4.Normal = V(1, 0, 0)
body21.BaseFeature = mirroring4
doc.recompute()
body22 = doc.addObject("PartDesign::Body", "Body021")
doc.recompute()

mirroring5 = doc.addObject("Part::Mirroring", "Mirroring004")
mirroring5.Source = body15
mirroring5.Base = V(7010.4, 609.6, 3619.5)
mirroring5.Normal = V(1, 0, 0)
body22.BaseFeature = mirroring5
doc.recompute()
body23 = doc.addObject("PartDesign::Body", "Body022")
body23.AllowCompound = True
doc.recompute()

body23.BaseFeature = body
doc.recompute()

body24 = doc.addObject("PartDesign::Body", "Body023")
body24.BaseFeature = body2
boolean = body23.newObject("PartDesign::Boolean", "Boolean")
boolean.Type = "Fuse"
boolean.addObjects([body24])
doc.recompute()

mirroring6 = doc.addObject("Part::Mirroring", "Mirroring005")
mirroring6.Source = body2
mirroring6.Base = V(7010.4, 609.6, 3619.5)
mirroring6.Normal = V(1, 0, 0)
body25 = doc.addObject("PartDesign::Body", "Body024")
body25.BaseFeature = mirroring6
boolean2 = body23.newObject("PartDesign::Boolean", "Boolean001")
boolean2.Type = "Fuse"
boolean2.addObjects([body25])
doc.recompute()

mirroring7 = doc.addObject("Part::Mirroring", "Mirroring006")
mirroring7.Source = body
mirroring7.Base = V(7010.4, 609.6, 3619.5)
mirroring7.Normal = V(1, 0, 0)
body26 = doc.addObject("PartDesign::Body", "Body025")
body26.BaseFeature = mirroring7
boolean3 = body23.newObject("PartDesign::Boolean", "Boolean002")
boolean3.Type = "Fuse"
boolean3.addObjects([body26])
doc.recompute()

# Sketch on XY plane
sketch18 = body23.newObject("Sketcher::SketchObject", "Sketch017")
sketch18.AttachmentSupport = (doc.getObject("XY_Plane022"), [""])
sketch18.MapMode = "FlatFace"
sketch18.AttachmentOffset = App.Placement(V(0, 0, 144 * 25.4), App.Rotation())
add_polygon(sketch18, [(10566.4, 1219.2), (10566.4, 0), (14020.8, 0), (14020.8, 1219.2)])  # lines 0-3
sketch18.addConstraint([
    Sketcher.Constraint("Vertical", 0),
    Sketcher.Constraint("Horizontal", 1),
    Sketcher.Constraint("Vertical", 2),
    Sketcher.Constraint("Horizontal", 3),
    Sketcher.Constraint("PointOnObject", 0, 2, -1),
    Sketcher.Constraint("DistanceX", 1, 1, 1, 2, Q("136 in")),
    Sketcher.Constraint("DistanceY", 0, 2, 0, 1, Q("48 in")),
    Sketcher.Constraint("DistanceX", -1, 1, 0, 2, Q("416 in")),
])
pocket1 = body23.newObject("PartDesign::Pocket", "Pocket")
pocket1.Profile = sketch18
pocket1.Type = "ThroughAll"

doc.recompute()
